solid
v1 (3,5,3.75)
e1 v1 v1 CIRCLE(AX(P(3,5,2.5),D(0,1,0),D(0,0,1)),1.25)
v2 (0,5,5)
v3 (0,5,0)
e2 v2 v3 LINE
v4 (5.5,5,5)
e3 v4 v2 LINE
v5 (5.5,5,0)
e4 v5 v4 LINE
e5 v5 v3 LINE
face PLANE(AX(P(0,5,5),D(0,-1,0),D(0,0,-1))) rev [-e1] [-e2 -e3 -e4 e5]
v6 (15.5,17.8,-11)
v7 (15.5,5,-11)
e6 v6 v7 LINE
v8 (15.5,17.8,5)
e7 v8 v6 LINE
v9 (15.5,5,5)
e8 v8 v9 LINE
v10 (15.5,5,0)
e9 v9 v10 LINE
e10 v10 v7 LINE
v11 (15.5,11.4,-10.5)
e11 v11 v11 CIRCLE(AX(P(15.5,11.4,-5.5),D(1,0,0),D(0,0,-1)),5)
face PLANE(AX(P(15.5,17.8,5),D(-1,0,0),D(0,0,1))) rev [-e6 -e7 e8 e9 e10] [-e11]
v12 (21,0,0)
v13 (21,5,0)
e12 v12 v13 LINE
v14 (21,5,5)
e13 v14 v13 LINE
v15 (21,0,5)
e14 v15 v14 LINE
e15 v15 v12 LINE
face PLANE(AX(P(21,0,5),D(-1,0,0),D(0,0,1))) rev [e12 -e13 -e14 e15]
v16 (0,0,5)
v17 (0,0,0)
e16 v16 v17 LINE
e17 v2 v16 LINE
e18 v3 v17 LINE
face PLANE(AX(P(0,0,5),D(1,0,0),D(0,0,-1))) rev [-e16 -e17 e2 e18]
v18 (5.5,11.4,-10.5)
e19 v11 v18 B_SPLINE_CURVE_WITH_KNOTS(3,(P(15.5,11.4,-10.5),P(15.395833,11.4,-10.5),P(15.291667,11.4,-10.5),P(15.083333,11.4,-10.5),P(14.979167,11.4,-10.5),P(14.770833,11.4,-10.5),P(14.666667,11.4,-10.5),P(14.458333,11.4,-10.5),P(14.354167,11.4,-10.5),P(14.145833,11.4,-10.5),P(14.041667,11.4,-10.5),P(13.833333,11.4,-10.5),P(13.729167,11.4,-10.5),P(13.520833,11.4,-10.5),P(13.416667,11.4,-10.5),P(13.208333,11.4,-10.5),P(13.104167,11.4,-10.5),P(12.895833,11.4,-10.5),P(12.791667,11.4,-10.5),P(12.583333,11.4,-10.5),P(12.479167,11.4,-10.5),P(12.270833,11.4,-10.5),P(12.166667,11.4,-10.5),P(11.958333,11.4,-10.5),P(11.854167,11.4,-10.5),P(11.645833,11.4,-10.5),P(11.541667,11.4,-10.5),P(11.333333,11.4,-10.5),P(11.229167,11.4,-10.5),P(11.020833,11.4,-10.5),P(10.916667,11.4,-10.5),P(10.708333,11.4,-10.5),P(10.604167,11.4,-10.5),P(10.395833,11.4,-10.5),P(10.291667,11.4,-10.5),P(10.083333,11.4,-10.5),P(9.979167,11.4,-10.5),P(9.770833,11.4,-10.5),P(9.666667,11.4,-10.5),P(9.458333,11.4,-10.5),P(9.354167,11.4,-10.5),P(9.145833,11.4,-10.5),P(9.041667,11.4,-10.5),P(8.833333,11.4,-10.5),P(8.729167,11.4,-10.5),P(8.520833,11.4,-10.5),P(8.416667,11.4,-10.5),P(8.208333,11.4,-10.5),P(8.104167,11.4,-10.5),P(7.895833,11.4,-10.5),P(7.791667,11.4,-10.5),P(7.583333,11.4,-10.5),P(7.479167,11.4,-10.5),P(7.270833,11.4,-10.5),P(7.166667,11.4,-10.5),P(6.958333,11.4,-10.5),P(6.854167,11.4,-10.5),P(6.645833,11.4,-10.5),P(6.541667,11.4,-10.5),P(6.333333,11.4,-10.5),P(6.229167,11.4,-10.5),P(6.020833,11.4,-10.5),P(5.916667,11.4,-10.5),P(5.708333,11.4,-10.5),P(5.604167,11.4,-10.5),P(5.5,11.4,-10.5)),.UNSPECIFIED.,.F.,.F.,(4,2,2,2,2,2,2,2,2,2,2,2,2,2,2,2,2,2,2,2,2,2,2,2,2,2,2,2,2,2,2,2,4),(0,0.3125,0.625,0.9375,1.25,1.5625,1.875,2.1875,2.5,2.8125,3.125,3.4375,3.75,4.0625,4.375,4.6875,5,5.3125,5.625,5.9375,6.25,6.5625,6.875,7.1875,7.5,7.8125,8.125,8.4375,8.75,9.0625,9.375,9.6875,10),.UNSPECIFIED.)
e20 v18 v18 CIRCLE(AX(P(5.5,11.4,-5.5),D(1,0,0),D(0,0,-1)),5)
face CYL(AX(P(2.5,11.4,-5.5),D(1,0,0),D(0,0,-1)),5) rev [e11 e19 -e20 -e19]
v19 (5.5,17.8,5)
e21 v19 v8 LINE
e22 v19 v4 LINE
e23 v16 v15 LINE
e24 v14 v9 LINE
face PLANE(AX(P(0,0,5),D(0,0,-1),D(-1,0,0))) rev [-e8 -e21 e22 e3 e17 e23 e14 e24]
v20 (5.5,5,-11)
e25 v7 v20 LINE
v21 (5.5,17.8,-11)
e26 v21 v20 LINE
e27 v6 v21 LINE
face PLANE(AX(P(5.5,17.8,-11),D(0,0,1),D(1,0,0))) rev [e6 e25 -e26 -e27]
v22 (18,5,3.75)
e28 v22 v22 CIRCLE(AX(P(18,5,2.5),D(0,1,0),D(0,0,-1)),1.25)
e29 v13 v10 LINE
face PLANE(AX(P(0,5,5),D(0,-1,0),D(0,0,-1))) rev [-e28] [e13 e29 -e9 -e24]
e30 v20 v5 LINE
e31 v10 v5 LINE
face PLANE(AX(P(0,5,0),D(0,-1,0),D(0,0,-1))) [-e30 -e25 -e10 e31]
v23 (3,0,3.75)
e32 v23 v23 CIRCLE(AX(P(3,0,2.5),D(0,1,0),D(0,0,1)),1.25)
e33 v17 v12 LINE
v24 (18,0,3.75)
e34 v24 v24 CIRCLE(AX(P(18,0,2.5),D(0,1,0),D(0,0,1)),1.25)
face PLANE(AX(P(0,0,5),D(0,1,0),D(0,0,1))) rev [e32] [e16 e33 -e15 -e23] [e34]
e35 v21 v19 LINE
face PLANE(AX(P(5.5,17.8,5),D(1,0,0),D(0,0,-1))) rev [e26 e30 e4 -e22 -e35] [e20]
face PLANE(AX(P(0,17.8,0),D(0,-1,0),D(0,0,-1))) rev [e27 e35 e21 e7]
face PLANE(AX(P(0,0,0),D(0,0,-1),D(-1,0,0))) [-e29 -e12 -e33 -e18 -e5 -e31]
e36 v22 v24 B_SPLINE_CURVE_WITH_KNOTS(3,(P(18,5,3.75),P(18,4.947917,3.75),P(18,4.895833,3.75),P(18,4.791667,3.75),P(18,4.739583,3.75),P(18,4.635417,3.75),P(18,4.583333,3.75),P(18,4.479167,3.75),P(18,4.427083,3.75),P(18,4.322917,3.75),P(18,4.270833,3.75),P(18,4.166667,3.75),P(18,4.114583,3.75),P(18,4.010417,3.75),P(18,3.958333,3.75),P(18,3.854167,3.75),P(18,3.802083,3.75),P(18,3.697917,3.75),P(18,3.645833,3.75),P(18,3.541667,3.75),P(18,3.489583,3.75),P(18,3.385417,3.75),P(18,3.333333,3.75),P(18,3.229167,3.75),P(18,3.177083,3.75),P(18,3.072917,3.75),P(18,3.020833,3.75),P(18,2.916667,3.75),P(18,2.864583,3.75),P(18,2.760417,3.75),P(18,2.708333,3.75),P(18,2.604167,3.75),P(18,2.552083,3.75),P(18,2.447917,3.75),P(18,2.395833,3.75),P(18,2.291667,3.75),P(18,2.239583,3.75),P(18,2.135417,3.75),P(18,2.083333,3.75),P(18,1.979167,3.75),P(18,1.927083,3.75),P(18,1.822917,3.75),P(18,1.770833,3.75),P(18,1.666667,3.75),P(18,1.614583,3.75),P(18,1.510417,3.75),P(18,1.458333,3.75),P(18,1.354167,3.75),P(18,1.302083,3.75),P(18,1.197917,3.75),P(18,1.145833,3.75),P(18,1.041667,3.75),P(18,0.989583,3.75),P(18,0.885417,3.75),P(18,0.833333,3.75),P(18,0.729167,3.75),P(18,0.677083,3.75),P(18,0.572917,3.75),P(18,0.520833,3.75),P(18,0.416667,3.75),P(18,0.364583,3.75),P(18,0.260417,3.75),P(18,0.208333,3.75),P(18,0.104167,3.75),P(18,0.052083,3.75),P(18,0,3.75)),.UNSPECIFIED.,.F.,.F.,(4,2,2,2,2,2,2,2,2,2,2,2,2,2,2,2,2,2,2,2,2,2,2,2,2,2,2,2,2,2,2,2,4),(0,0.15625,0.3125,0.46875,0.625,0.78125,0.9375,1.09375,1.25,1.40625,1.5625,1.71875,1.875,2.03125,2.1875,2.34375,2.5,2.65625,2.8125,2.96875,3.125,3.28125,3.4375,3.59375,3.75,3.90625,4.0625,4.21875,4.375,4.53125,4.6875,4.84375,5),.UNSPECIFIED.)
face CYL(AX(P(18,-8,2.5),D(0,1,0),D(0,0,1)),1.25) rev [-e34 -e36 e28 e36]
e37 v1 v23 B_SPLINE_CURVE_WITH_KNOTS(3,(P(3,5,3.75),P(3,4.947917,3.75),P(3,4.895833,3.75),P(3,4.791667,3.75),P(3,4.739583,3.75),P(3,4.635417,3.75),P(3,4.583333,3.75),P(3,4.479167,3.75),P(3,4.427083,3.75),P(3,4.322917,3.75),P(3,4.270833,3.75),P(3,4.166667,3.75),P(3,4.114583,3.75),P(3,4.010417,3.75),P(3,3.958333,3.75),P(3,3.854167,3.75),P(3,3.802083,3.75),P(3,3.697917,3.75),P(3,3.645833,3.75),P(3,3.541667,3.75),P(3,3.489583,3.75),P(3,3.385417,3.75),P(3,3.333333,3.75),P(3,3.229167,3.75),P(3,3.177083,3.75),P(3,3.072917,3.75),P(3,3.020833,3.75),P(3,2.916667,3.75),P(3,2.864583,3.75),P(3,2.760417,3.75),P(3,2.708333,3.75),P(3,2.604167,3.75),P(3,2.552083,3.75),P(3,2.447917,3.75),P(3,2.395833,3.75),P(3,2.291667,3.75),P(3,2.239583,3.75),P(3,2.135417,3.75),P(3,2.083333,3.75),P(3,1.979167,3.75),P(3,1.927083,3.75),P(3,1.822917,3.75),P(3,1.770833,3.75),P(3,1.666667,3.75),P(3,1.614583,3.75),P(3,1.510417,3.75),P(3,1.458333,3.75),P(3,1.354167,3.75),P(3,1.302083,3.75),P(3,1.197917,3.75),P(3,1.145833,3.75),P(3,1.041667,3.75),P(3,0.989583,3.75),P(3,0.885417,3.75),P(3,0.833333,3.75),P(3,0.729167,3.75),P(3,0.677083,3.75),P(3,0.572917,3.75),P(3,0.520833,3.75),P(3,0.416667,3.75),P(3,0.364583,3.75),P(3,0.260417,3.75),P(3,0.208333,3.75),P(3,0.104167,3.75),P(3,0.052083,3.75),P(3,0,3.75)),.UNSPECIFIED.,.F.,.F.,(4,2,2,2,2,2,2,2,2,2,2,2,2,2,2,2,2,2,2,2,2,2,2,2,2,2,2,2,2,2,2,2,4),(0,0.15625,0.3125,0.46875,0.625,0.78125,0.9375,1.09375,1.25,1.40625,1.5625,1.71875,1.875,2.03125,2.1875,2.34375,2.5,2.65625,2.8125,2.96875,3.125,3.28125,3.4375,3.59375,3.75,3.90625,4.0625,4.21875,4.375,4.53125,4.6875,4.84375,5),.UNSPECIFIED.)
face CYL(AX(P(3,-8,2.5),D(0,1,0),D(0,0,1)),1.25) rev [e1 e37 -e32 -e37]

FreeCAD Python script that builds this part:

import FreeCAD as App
import Part
import Sketcher

V = App.Vector


def add_polygon(sketch, points):
    """Adds a closed chain of lines whose ends are joined by coincident constraints."""
    first, n = sketch.GeometryCount, len(points)
    for a, b in zip(points, points[1:] + points[:1]):
        sketch.addGeometry(Part.LineSegment(App.Vector(*a, 0), App.Vector(*b, 0)), False)
    for i in range(n):
        sketch.addConstraint(Sketcher.Constraint("Coincident", first + i, 2, first + (i + 1) % n, 1))

doc = App.newDocument("Part")
body = doc.addObject("PartDesign::Body", "Body")

# Sketch on XY plane
sketch1 = body.newObject("Sketcher::SketchObject", "Sketch")
sketch1.AttachmentSupport = (doc.getObject("XY_Plane"), [""])
sketch1.MapMode = "FlatFace"
add_polygon(sketch1, [(0, 5), (0, 0), (21, 0), (21, 5)])  # lines 0-3
sketch1.addConstraint([
    Sketcher.Constraint("Vertical", 0),
    Sketcher.Constraint("Horizontal", 1),
    Sketcher.Constraint("Vertical", 2),
    Sketcher.Constraint("Horizontal", 3),
    Sketcher.Constraint("Coincident", 0, 2, -1, 1),
    Sketcher.Constraint("DistanceX", 1, 1, 1, 2, 21.0),
    Sketcher.Constraint("DistanceY", 0, 2, 0, 1, 5.0),
])
pad1 = body.newObject("PartDesign::Pad", "Pad")
pad1.Profile = sketch1
pad1.Length = 5

# Sketch on XZ plane
sketch2 = body.newObject("Sketcher::SketchObject", "Sketch001")
sketch2.AttachmentSupport = (doc.getObject("XZ_Plane"), [""])
sketch2.MapMode = "FlatFace"
sketch2.AttachmentOffset = App.Placement(V(0, 0, -5), App.Rotation())
add_polygon(sketch2, [(6, -11), (6, 5), (16, 5), (16, -11)])  # lines 0-3
sketch2.addConstraint([
    Sketcher.Constraint("Vertical", 0),
    Sketcher.Constraint("Horizontal", 1),
    Sketcher.Constraint("Vertical", 2),
    Sketcher.Constraint("Horizontal", 3),
    Sketcher.Constraint("DistanceX", 1, 1, 1, 2, 10.0),
    Sketcher.Constraint("DistanceY", 0, 1, 0, 2, 16.0),
    Sketcher.Constraint("DistanceY", -1, 1, 0, 2, 5.0),
    Sketcher.Constraint("DistanceX", -1, 1, 0, 2, 5.5),
])
pad2 = body.newObject("PartDesign::Pad", "Pad001")
pad2.Profile = sketch2
pad2.Length = 12.8
pad2.Reversed = True

# Sketch on XZ plane
sketch3 = body.newObject("Sketcher::SketchObject", "Sketch002")
sketch3.AttachmentSupport = (doc.getObject("XZ_Plane"), [""])
sketch3.MapMode = "FlatFace"
sketch3.AttachmentOffset = App.Placement(V(0, 0, -5), App.Rotation())
sketch3.addGeometry([
    Part.Circle(V(3, 2.5, 0), V(0, 0, 1), 1.2),
    Part.Circle(V(18, 2.5, 0), V(0, 0, 1), 1.2),
], False)
sketch3.addConstraint([
    Sketcher.Constraint("Equal", 0, 1),
    Sketcher.Constraint("Horizontal", 0, 3, 1, 3),
    Sketcher.Constraint("Diameter", 0, 2.5),
    Sketcher.Constraint("DistanceX", -1, 1, 0, 3, 3.0),
    Sketcher.Constraint("DistanceX", -1, 1, 1, 3, 18.0),
    Sketcher.Constraint("DistanceY", -1, 1, 0, 3, 2.5),
])
pocket1 = body.newObject("PartDesign::Pocket", "Pocket")
pocket1.Profile = sketch3
pocket1.Length = 13
pocket1.Reversed = True

# Sketch on YZ plane
sketch4 = body.newObject("Sketcher::SketchObject", "Sketch003")
sketch4.AttachmentSupport = (doc.getObject("YZ_Plane"), [""])
sketch4.MapMode = "FlatFace"
sketch4.AttachmentOffset = App.Placement(V(0, 0, 15.5), App.Rotation())
sketch4.addGeometry(Part.Circle(V(11, -6, 0), V(0, 0, 1), 5), False)
sketch4.addConstraint([
    Sketcher.Constraint("Diameter", 0, 10.0),
    Sketcher.Constraint("DistanceX", -1, 1, 0, 3, 11.4),
    Sketcher.Constraint("DistanceY", 0, 3, -1, 1, 5.5),
])
pocket2 = body.newObject("PartDesign::Pocket", "Pocket001")
pocket2.Profile = sketch4
pocket2.Length = 13

doc.recompute()
